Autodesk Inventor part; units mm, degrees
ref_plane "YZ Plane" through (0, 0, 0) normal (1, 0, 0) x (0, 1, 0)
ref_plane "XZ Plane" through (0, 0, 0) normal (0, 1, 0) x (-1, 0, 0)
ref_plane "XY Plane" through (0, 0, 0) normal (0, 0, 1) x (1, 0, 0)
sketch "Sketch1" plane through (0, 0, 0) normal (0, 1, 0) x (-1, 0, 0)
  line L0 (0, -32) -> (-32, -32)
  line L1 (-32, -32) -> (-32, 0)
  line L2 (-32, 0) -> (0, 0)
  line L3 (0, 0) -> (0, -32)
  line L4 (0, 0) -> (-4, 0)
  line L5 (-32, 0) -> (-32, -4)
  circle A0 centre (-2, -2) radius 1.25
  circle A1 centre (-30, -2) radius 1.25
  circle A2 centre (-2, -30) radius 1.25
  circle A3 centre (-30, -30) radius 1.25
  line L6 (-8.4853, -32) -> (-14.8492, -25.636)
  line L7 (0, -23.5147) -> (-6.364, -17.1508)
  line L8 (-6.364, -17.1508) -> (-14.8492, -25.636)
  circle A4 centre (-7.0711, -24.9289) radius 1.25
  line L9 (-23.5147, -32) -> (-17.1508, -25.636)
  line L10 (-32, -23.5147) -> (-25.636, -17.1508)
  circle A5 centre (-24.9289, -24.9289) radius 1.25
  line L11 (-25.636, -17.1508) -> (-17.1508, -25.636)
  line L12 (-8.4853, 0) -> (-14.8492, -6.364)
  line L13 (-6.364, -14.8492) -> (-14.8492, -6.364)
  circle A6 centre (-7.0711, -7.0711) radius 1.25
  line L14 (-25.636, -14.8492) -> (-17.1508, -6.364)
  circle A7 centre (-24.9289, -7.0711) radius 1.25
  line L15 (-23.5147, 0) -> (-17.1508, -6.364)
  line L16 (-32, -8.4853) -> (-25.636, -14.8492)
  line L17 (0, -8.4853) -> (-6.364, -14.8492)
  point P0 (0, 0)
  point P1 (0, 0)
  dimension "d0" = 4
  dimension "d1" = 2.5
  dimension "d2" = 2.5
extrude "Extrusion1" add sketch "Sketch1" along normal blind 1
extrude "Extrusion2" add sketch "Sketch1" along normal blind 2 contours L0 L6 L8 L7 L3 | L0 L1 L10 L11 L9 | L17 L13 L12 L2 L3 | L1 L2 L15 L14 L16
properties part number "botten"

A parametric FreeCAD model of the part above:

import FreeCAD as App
import Part
import Sketcher

V = App.Vector


def add_polygon(sketch, points):
    """Adds a closed chain of lines whose ends are joined by coincident constraints."""
    first, n = sketch.GeometryCount, len(points)
    for a, b in zip(points, points[1:] + points[:1]):
        sketch.addGeometry(Part.LineSegment(App.Vector(*a, 0), App.Vector(*b, 0)), False)
    for i in range(n):
        sketch.addConstraint(Sketcher.Constraint("Coincident", first + i, 2, first + (i + 1) % n, 1))

doc = App.newDocument("Part")
body = doc.addObject("PartDesign::Body", "Body")

sketch1 = body.newObject("Sketcher::SketchObject", "Sketch")
sketch1.AttachmentSupport = (doc.getObject("XZ_Plane"), [""])
sketch1.MapMode = "FlatFace"
add_polygon(sketch1, [(0, -32), (0, 0), (32, 0), (32, -32)])
sketch1.addGeometry(Part.Circle(V(2, -30, 0), V(0, 0, 1), 1.2), False)
sketch1.addGeometry(Part.Circle(V(7.1, -24.9, 0), V(0, 0, 1), 1.2), False)
sketch1.addGeometry(Part.Circle(V(24.9, -24.9, 0), V(0, 0, 1), 1.2), False)
sketch1.addGeometry(Part.Circle(V(30, -30, 0), V(0, 0, 1), 1.2), False)
sketch1.addGeometry(Part.Circle(V(30, -2, 0), V(0, 0, 1), 1.2), False)
sketch1.addGeometry(Part.Circle(V(24.9, -7.1, 0), V(0, 0, 1), 1.2), False)
sketch1.addGeometry(Part.Circle(V(7.1, -7.1, 0), V(0, 0, 1), 1.2), False)
sketch1.addGeometry(Part.Circle(V(2, -2, 0), V(0, 0, 1), 1.2), False)
sketch1.addConstraint(Sketcher.Constraint("Vertical", 0))
sketch1.addConstraint(Sketcher.Constraint("Horizontal", 1))
sketch1.addConstraint(Sketcher.Constraint("Vertical", 2))
sketch1.addConstraint(Sketcher.Constraint("Horizontal", 3))
sketch1.addConstraint(Sketcher.Constraint("Coincident", 0, 2, -1, 1))
sketch1.addConstraint(Sketcher.Constraint("Equal", 4, 5))
sketch1.addConstraint(Sketcher.Constraint("Equal", 5, 6))
sketch1.addConstraint(Sketcher.Constraint("Equal", 6, 7))
sketch1.addConstraint(Sketcher.Constraint("Equal", 7, 8))
sketch1.addConstraint(Sketcher.Constraint("Equal", 8, 9))
sketch1.addConstraint(Sketcher.Constraint("Equal", 9, 10))
sketch1.addConstraint(Sketcher.Constraint("Equal", 10, 11))
sketch1.addConstraint(Sketcher.Constraint("Horizontal", 5, 3, 6, 3))
sketch1.addConstraint(Sketcher.Constraint("Horizontal", 4, 3, 7, 3))
sketch1.addConstraint(Sketcher.Constraint("Horizontal", 9, 3, 10, 3))
sketch1.addConstraint(Sketcher.Constraint("Horizontal", 8, 3, 11, 3))
sketch1.addConstraint(Sketcher.Constraint("Vertical", 7, 3, 8, 3))
sketch1.addConstraint(Sketcher.Constraint("Vertical", 6, 3, 9, 3))
sketch1.addConstraint(Sketcher.Constraint("Vertical", 5, 3, 10, 3))
sketch1.addConstraint(Sketcher.Constraint("Vertical", 4, 3, 11, 3))
sketch1.addConstraint(Sketcher.Constraint("Equal", 3, 0))
sketch1.addConstraint(Sketcher.Constraint("Diameter", 4, 2.5))
sketch1.addConstraint(Sketcher.Constraint("DistanceX", 1, 1, 1, 2, 32.0))
sketch1.addConstraint(Sketcher.Constraint("DistanceX", -1, 1, 4, 3, 2.0))
sketch1.addConstraint(Sketcher.Constraint("DistanceY", 4, 3, -1, 1, 30.0))
sketch1.addConstraint(Sketcher.Constraint("DistanceX", -1, 1, 7, 3, 30.0))
sketch1.addConstraint(Sketcher.Constraint("DistanceY", 8, 3, -1, 1, 2.0))
sketch1.addConstraint(Sketcher.Constraint("DistanceX", -1, 1, 5, 3, 7.071))
sketch1.addConstraint(Sketcher.Constraint("DistanceY", 5, 3, -1, 1, 24.929))
sketch1.addConstraint(Sketcher.Constraint("DistanceX", -1, 1, 6, 3, 24.929))
sketch1.addConstraint(Sketcher.Constraint("DistanceY", 9, 3, -1, 1, 7.071))
pad1 = body.newObject("PartDesign::Pad", "Pad")
pad1.Profile = sketch1
pad1.Length = 1
pad1.Reversed = True

sketch2 = body.newObject("Sketcher::SketchObject", "Sketch001")
sketch2.AttachmentSupport = (doc.getObject("XZ_Plane"), [""])
sketch2.MapMode = "FlatFace"
add_polygon(sketch2, [(8.5, -32), (0, -32), (0, -23.5), (6.4, -17.2), (14.8, -25.6)])
sketch2.addGeometry(Part.Circle(V(2, -30, 0), V(0, 0, 1), 1.2), False)
sketch2.addGeometry(Part.Circle(V(7.1, -24.9, 0), V(0, 0, 1), 1.2), False)
add_polygon(sketch2, [(32, -32), (23.5, -32), (17.2, -25.6), (25.6, -17.2), (32, -23.5)])
sketch2.addGeometry(Part.Circle(V(30, -30, 0), V(0, 0, 1), 1.2), False)
sketch2.addGeometry(Part.Circle(V(24.9, -24.9, 0), V(0, 0, 1), 1.2), False)
add_polygon(sketch2, [(6.4, -14.8), (0, -8.5), (0, 0), (8.5, 0), (14.8, -6.4)])
sketch2.addGeometry(Part.Circle(V(7.1, -7.1, 0), V(0, 0, 1), 1.2), False)
sketch2.addGeometry(Part.Circle(V(2, -2, 0), V(0, 0, 1), 1.2), False)
add_polygon(sketch2, [(32, 0), (32, -8.5), (25.6, -14.8), (17.2, -6.4), (23.5, 0)])
sketch2.addGeometry(Part.Circle(V(24.9, -7.1, 0), V(0, 0, 1), 1.2), False)
sketch2.addGeometry(Part.Circle(V(30, -2, 0), V(0, 0, 1), 1.2), False)
sketch2.addConstraint(Sketcher.Constraint("Horizontal", 0))
sketch2.addConstraint(Sketcher.Constraint("Vertical", 1))
sketch2.addConstraint(Sketcher.Constraint("Horizontal", 7))
sketch2.addConstraint(Sketcher.Constraint("Vertical", 11))
sketch2.addConstraint(Sketcher.Constraint("Vertical", 15))
sketch2.addConstraint(Sketcher.Constraint("Horizontal", 16))
sketch2.addConstraint(Sketcher.Constraint("Vertical", 21))
sketch2.addConstraint(Sketcher.Constraint("Horizontal", 25))
sketch2.addConstraint(Sketcher.Constraint("Coincident", 15, 2, -1, 1))
sketch2.addConstraint(Sketcher.Constraint("Equal", 5, 6))
sketch2.addConstraint(Sketcher.Constraint("Equal", 6, 12))
sketch2.addConstraint(Sketcher.Constraint("Equal", 12, 13))
sketch2.addConstraint(Sketcher.Constraint("Equal", 13, 19))
sketch2.addConstraint(Sketcher.Constraint("Equal", 19, 20))
sketch2.addConstraint(Sketcher.Constraint("Equal", 20, 26))
sketch2.addConstraint(Sketcher.Constraint("Equal", 26, 27))
sketch2.addConstraint(Sketcher.Constraint("PointOnObject", 0, 2, -2))
sketch2.addConstraint(Sketcher.Constraint("PointOnObject", 24, 2, -1))
sketch2.addConstraint(Sketcher.Constraint("Perpendicular", 2, 3))
sketch2.addConstraint(Sketcher.Constraint("Perpendicular", 3, 4))
sketch2.addConstraint(Sketcher.Constraint("Perpendicular", 4, 8))
sketch2.addConstraint(Sketcher.Constraint("Perpendicular", 8, 9))
sketch2.addConstraint(Sketcher.Constraint("Perpendicular", 9, 10))
sketch2.addConstraint(Sketcher.Constraint("Parallel", 10, 14))
sketch2.addConstraint(Sketcher.Constraint("Parallel", 14, 17))
sketch2.addConstraint(Sketcher.Constraint("Perpendicular", 17, 18))
sketch2.addConstraint(Sketcher.Constraint("Parallel", 18, 22))
sketch2.addConstraint(Sketcher.Constraint("Perpendicular", 22, 23))
sketch2.addConstraint(Sketcher.Constraint("Perpendicular", 23, 24))
sketch2.addConstraint(Sketcher.Constraint("Horizontal", 5, 3, 12, 3))
sketch2.addConstraint(Sketcher.Constraint("Horizontal", 6, 3, 13, 3))
sketch2.addConstraint(Sketcher.Constraint("Horizontal", 19, 3, 26, 3))
sketch2.addConstraint(Sketcher.Constraint("Horizontal", 20, 3, 27, 3))
sketch2.addConstraint(Sketcher.Constraint("Horizontal", 4, 2, 7, 2))
sketch2.addConstraint(Sketcher.Constraint("Horizontal", 3, 2, 8, 2))
sketch2.addConstraint(Sketcher.Constraint("Horizontal", 2, 2, 9, 2))
sketch2.addConstraint(Sketcher.Constraint("Horizontal", 1, 2, 10, 2))
sketch2.addConstraint(Sketcher.Constraint("Horizontal", 14, 2, 21, 2))
sketch2.addConstraint(Sketcher.Constraint("Horizontal", 18, 2, 22, 2))
sketch2.addConstraint(Sketcher.Constraint("Horizontal", 17, 2, 23, 2))
sketch2.addConstraint(Sketcher.Constraint("Vertical", 6, 3, 19, 3))
sketch2.addConstraint(Sketcher.Constraint("Vertical", 5, 3, 20, 3))
sketch2.addConstraint(Sketcher.Constraint("Vertical", 13, 3, 26, 3))
sketch2.addConstraint(Sketcher.Constraint("Vertical", 12, 3, 27, 3))
sketch2.addConstraint(Sketcher.Constraint("Vertical", 4, 2, 16, 2))
sketch2.addConstraint(Sketcher.Constraint("Vertical", 3, 2, 17, 2))
sketch2.addConstraint(Sketcher.Constraint("Vertical", 2, 2, 18, 2))
sketch2.addConstraint(Sketcher.Constraint("Vertical", 11, 2, 21, 2))
sketch2.addConstraint(Sketcher.Constraint("Vertical", 9, 2, 22, 2))
sketch2.addConstraint(Sketcher.Constraint("Equal", 25, 1))
sketch2.addConstraint(Sketcher.Constraint("Diameter", 5, 2.5))
sketch2.addConstraint(Sketcher.Constraint("Distance", 2, 9.0))
sketch2.addConstraint(Sketcher.Constraint("Distance", 3, 12.0))
sketch2.addConstraint(Sketcher.Constraint("DistanceX", -1, 1, 5, 3, 2.0))
sketch2.addConstraint(Sketcher.Constraint("DistanceY", 5, 3, -1, 1, 30.0))
sketch2.addConstraint(Sketcher.Constraint("DistanceX", -1, 1, 12, 3, 30.0))
sketch2.addConstraint(Sketcher.Constraint("DistanceY", 20, 3, -1, 1, 2.0))
sketch2.addConstraint(Sketcher.Constraint("DistanceY", 0, 2, -1, 1, 32.0))
sketch2.addConstraint(Sketcher.Constraint("DistanceX", -1, 1, 10, 2, 32.0))
sketch2.addConstraint(Sketcher.Constraint("DistanceX", -1, 1, 6, 3, 7.071))
sketch2.addConstraint(Sketcher.Constraint("DistanceY", 6, 3, -1, 1, 24.929))
sketch2.addConstraint(Sketcher.Constraint("DistanceX", -1, 1, 13, 3, 24.929))
sketch2.addConstraint(Sketcher.Constraint("DistanceY", 19, 3, -1, 1, 7.071))
pad2 = body.newObject("PartDesign::Pad", "Pad001")
pad2.Profile = sketch2
pad2.Length = 2
pad2.Reversed = True

doc.recompute()
